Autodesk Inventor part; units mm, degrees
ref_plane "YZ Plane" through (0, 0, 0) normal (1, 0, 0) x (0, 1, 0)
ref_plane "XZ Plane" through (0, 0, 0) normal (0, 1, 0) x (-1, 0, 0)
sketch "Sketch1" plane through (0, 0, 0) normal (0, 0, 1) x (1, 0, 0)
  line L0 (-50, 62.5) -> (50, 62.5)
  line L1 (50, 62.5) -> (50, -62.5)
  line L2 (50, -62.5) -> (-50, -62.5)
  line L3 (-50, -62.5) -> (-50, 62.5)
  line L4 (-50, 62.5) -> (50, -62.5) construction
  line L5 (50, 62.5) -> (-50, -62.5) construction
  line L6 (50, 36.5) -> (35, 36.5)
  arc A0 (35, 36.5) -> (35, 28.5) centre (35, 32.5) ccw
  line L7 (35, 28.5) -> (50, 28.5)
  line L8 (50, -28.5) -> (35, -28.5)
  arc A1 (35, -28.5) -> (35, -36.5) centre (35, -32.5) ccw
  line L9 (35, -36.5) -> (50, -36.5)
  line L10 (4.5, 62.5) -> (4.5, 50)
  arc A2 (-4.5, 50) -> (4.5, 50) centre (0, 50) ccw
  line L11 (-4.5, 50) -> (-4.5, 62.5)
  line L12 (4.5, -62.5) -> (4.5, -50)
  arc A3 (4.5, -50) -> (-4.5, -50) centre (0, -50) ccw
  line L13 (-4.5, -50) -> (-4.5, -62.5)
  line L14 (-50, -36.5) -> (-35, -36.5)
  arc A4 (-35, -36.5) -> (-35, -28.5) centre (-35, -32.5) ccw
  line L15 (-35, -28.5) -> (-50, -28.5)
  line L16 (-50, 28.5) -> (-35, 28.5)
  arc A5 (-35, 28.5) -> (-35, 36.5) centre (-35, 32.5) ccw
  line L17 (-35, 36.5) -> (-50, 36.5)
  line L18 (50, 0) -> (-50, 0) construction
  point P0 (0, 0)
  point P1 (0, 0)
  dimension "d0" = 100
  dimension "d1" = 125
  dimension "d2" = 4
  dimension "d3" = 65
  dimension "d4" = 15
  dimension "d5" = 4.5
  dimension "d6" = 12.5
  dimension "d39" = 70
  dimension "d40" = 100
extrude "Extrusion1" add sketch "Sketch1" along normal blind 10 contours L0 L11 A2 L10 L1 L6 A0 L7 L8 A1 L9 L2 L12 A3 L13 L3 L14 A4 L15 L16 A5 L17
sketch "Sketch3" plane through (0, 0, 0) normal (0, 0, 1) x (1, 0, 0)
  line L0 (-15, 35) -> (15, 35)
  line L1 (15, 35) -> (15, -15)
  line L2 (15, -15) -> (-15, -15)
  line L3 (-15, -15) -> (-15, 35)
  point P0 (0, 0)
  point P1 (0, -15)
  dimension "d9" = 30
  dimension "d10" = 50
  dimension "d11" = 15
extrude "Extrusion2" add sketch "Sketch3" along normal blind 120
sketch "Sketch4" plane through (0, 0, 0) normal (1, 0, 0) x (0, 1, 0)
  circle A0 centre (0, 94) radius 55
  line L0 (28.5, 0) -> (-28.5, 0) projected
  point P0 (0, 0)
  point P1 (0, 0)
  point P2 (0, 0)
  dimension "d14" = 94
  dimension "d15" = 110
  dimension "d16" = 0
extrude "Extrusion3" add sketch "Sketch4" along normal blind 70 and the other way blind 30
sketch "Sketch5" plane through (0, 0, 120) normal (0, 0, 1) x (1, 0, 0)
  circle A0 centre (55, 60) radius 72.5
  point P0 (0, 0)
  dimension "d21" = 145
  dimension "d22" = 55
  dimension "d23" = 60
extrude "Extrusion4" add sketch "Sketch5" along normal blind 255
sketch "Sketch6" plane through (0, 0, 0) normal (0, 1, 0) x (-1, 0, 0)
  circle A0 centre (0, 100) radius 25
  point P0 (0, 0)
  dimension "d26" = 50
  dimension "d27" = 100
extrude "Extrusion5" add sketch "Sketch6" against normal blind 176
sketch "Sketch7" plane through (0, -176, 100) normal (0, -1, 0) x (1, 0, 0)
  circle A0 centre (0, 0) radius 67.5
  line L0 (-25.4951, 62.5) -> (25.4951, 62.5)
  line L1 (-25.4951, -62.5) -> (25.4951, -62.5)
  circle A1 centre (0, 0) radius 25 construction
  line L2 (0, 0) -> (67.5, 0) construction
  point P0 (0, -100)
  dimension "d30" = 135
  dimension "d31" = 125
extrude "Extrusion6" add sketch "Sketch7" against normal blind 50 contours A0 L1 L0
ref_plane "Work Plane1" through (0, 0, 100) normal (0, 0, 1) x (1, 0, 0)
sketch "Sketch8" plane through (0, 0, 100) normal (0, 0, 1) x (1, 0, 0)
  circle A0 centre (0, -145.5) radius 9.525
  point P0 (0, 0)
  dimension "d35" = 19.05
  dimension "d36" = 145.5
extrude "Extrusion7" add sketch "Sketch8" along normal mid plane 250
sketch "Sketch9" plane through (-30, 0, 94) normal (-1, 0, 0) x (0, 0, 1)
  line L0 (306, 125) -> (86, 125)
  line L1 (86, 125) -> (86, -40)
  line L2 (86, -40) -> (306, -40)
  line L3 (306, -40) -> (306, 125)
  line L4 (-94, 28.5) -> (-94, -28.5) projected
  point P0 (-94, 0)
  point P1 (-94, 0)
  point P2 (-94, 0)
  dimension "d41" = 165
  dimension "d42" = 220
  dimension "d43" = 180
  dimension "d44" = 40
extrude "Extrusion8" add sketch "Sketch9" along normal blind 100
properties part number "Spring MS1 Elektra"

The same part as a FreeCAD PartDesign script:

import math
import FreeCAD as App
import Part
import Sketcher

V = App.Vector

doc = App.newDocument("Part")
params = doc.addObject("Spreadsheet::Sheet", "Params")
for row, (alias, value) in enumerate([
    ("sketch1_radius", "4 mm"),
    ("sketch1_radius2", "4.5 mm"),
    ("sketch1_width", "15 mm"),
    ("sketch1_height", "12.5 mm"),
    ("pad1_length", "10 mm"),
    ("sketch2_width", "30 mm"),
    ("sketch2_height", "50 mm"),
    ("pad2_length", "120 mm"),
    ("sketch3_diameter", "110 mm"),
    ("pad3_length", "70 mm"),
    ("pad3_length2", "30 mm"),
    ("sketch4_diameter", "145 mm"),
    ("pad4_length", "255 mm"),
    ("sketch5_diameter", "50 mm"),
    ("pad5_length", "176 mm"),
    ("sketch6_radius", "67.5 mm"),
    ("pad6_length", "50 mm"),
    ("sketch7_diameter", "19.05 mm"),
    ("pad7_length", "250 mm"),
    ("sketch8_width", "165 mm"),
    ("sketch8_height", "220 mm"),
    ("pad8_length", "100 mm"),
], start=1):
    params.set(f"A{row}", alias)
    params.set(f"B{row}", "=" + value)
    params.setAlias(f"B{row}", alias)

body = doc.addObject("PartDesign::Body", "Body")
body.AllowCompound = True

sketch1 = body.newObject("Sketcher::SketchObject", "Sketch")
sketch1.AttachmentSupport = (doc.getObject("XY_Plane"), [""])
sketch1.MapMode = "FlatFace"
sketch1.addGeometry(Part.LineSegment(V(-4.5, 62.5, 0), V(-50, 62.5, 0)), False)
sketch1.addGeometry(Part.LineSegment(V(-50, 62.5, 0), V(-50, 36.5, 0)), False)
sketch1.addGeometry(Part.LineSegment(V(-50, 36.5, 0), V(-35, 36.5, 0)), False)
sketch1.addGeometry(Part.ArcOfCircle(Part.Circle(V(-35, 32.5, 0), V(0, 0, 1), 4), math.radians(-90), math.radians(90)), False)
sketch1.addGeometry(Part.LineSegment(V(-35, 28.5, 0), V(-50, 28.5, 0)), False)
sketch1.addGeometry(Part.LineSegment(V(-50, 28.5, 0), V(-50, -28.5, 0)), False)
sketch1.addGeometry(Part.LineSegment(V(-50, -28.5, 0), V(-35, -28.5, 0)), False)
sketch1.addGeometry(Part.ArcOfCircle(Part.Circle(V(-35, -32.5, 0), V(0, 0, 1), 4), math.radians(-90), math.radians(90)), False)
sketch1.addGeometry(Part.LineSegment(V(-35, -36.5, 0), V(-50, -36.5, 0)), False)
sketch1.addGeometry(Part.LineSegment(V(-50, -36.5, 0), V(-50, -62.5, 0)), False)
sketch1.addGeometry(Part.LineSegment(V(-50, -62.5, 0), V(-4.5, -62.5, 0)), False)
sketch1.addGeometry(Part.LineSegment(V(-4.5, -62.5, 0), V(-4.5, -50, 0)), False)
sketch1.addGeometry(Part.ArcOfCircle(Part.Circle(V(0, -50, 0), V(0, 0, 1), 4.5), math.radians(0), math.radians(180)), False)
sketch1.addGeometry(Part.LineSegment(V(4.5, -50, 0), V(4.5, -62.5, 0)), False)
sketch1.addGeometry(Part.LineSegment(V(4.5, -62.5, 0), V(50, -62.5, 0)), False)
sketch1.addGeometry(Part.LineSegment(V(50, -62.5, 0), V(50, -36.5, 0)), False)
sketch1.addGeometry(Part.LineSegment(V(50, -36.5, 0), V(35, -36.5, 0)), False)
sketch1.addGeometry(Part.ArcOfCircle(Part.Circle(V(35, -32.5, 0), V(0, 0, 1), 4), math.radians(90), math.radians(270)), False)
sketch1.addGeometry(Part.LineSegment(V(35, -28.5, 0), V(50, -28.5, 0)), False)
sketch1.addGeometry(Part.LineSegment(V(50, -28.5, 0), V(50, 28.5, 0)), False)
sketch1.addGeometry(Part.LineSegment(V(50, 28.5, 0), V(35, 28.5, 0)), False)
sketch1.addGeometry(Part.ArcOfCircle(Part.Circle(V(35, 32.5, 0), V(0, 0, 1), 4), math.radians(90), math.radians(270)), False)
sketch1.addGeometry(Part.LineSegment(V(35, 36.5, 0), V(50, 36.5, 0)), False)
sketch1.addGeometry(Part.LineSegment(V(50, 36.5, 0), V(50, 62.5, 0)), False)
sketch1.addGeometry(Part.LineSegment(V(50, 62.5, 0), V(4.5, 62.5, 0)), False)
sketch1.addGeometry(Part.LineSegment(V(4.5, 62.5, 0), V(4.5, 50, 0)), False)
sketch1.addGeometry(Part.ArcOfCircle(Part.Circle(V(0, 50, 0), V(0, 0, 1), 4.5), math.radians(180), math.radians(360)), False)
sketch1.addGeometry(Part.LineSegment(V(-4.5, 50, 0), V(-4.5, 62.5, 0)), False)
sketch1.addConstraint(Sketcher.Constraint("Coincident", 0, 2, 1, 1))
sketch1.addConstraint(Sketcher.Constraint("Coincident", 1, 2, 2, 1))
sketch1.addConstraint(Sketcher.Constraint("Tangent", 2, 2, 3, 2))
sketch1.addConstraint(Sketcher.Constraint("Tangent", 3, 1, 4, 1))
sketch1.addConstraint(Sketcher.Constraint("Coincident", 4, 2, 5, 1))
sketch1.addConstraint(Sketcher.Constraint("Coincident", 5, 2, 6, 1))
sketch1.addConstraint(Sketcher.Constraint("Tangent", 6, 2, 7, 2))
sketch1.addConstraint(Sketcher.Constraint("Tangent", 7, 1, 8, 1))
sketch1.addConstraint(Sketcher.Constraint("Coincident", 8, 2, 9, 1))
sketch1.addConstraint(Sketcher.Constraint("Coincident", 9, 2, 10, 1))
sketch1.addConstraint(Sketcher.Constraint("Coincident", 10, 2, 11, 1))
sketch1.addConstraint(Sketcher.Constraint("Tangent", 11, 2, 12, 2))
sketch1.addConstraint(Sketcher.Constraint("Tangent", 12, 1, 13, 1))
sketch1.addConstraint(Sketcher.Constraint("Coincident", 13, 2, 14, 1))
sketch1.addConstraint(Sketcher.Constraint("Coincident", 14, 2, 15, 1))
sketch1.addConstraint(Sketcher.Constraint("Coincident", 15, 2, 16, 1))
sketch1.addConstraint(Sketcher.Constraint("Tangent", 16, 2, 17, 2))
sketch1.addConstraint(Sketcher.Constraint("Tangent", 17, 1, 18, 1))
sketch1.addConstraint(Sketcher.Constraint("Coincident", 18, 2, 19, 1))
sketch1.addConstraint(Sketcher.Constraint("Coincident", 19, 2, 20, 1))
sketch1.addConstraint(Sketcher.Constraint("Tangent", 20, 2, 21, 2))
sketch1.addConstraint(Sketcher.Constraint("Tangent", 21, 1, 22, 1))
sketch1.addConstraint(Sketcher.Constraint("Coincident", 22, 2, 23, 1))
sketch1.addConstraint(Sketcher.Constraint("Coincident", 23, 2, 24, 1))
sketch1.addConstraint(Sketcher.Constraint("Coincident", 24, 2, 25, 1))
sketch1.addConstraint(Sketcher.Constraint("Tangent", 25, 2, 26, 2))
sketch1.addConstraint(Sketcher.Constraint("Tangent", 26, 1, 27, 1))
sketch1.addConstraint(Sketcher.Constraint("Coincident", 27, 2, 0, 1))
sketch1.addConstraint(Sketcher.Constraint("Horizontal", 0))
sketch1.addConstraint(Sketcher.Constraint("Vertical", 1))
sketch1.addConstraint(Sketcher.Constraint("Horizontal", 2))
sketch1.addConstraint(Sketcher.Constraint("Horizontal", 4))
sketch1.addConstraint(Sketcher.Constraint("Vertical", 5))
sketch1.addConstraint(Sketcher.Constraint("Horizontal", 6))
sketch1.addConstraint(Sketcher.Constraint("Horizontal", 8))
sketch1.addConstraint(Sketcher.Constraint("Vertical", 9))
sketch1.addConstraint(Sketcher.Constraint("Horizontal", 10))
sketch1.addConstraint(Sketcher.Constraint("Vertical", 11))
sketch1.addConstraint(Sketcher.Constraint("Vertical", 13))
sketch1.addConstraint(Sketcher.Constraint("Horizontal", 14))
sketch1.addConstraint(Sketcher.Constraint("Vertical", 15))
sketch1.addConstraint(Sketcher.Constraint("Horizontal", 16))
sketch1.addConstraint(Sketcher.Constraint("Horizontal", 18))
sketch1.addConstraint(Sketcher.Constraint("Vertical", 19))
sketch1.addConstraint(Sketcher.Constraint("Horizontal", 20))
sketch1.addConstraint(Sketcher.Constraint("Horizontal", 22))
sketch1.addConstraint(Sketcher.Constraint("Vertical", 23))
sketch1.addConstraint(Sketcher.Constraint("Horizontal", 24))
sketch1.addConstraint(Sketcher.Constraint("Vertical", 25))
sketch1.addConstraint(Sketcher.Constraint("Vertical", 27))
sketch1.addConstraint(Sketcher.Constraint("Equal", 3, 7))
sketch1.addConstraint(Sketcher.Constraint("Equal", 7, 17))
sketch1.addConstraint(Sketcher.Constraint("Equal", 17, 21))
sketch1.addConstraint(Sketcher.Constraint("Equal", 12, 26))
sketch1.addConstraint(Sketcher.Constraint("Symmetric", 3, 3, 17, 3, -1, 1))
sketch1.addConstraint(Sketcher.Constraint("Symmetric", 7, 3, 21, 3, -1, 1))
sketch1.addConstraint(Sketcher.Constraint("Symmetric", 12, 3, 26, 3, -1, 1))
sketch1.addConstraint(Sketcher.Constraint("Symmetric", 0, 2, 14, 2, -1, 1))
sketch1.addConstraint(Sketcher.Constraint("Symmetric", 9, 2, 23, 2, -1, 1))
sketch1.addConstraint(Sketcher.Constraint("Symmetric", 7, 3, 17, 3, -2))
sketch1.addConstraint(Sketcher.Constraint("Symmetric", 10, 2, 13, 2, -2))
sketch1.addConstraint(Sketcher.Constraint("Vertical", 1, 2, 4, 2))
sketch1.addConstraint(Sketcher.Constraint("Vertical", 5, 2, 8, 2))
sketch1.addConstraint(Sketcher.Constraint("Vertical", 15, 2, 18, 2))
sketch1.addConstraint(Sketcher.Constraint("Radius", 3, 4.0))
sketch1.addConstraint(Sketcher.Constraint("Radius", 12, 4.5))
sketch1.addConstraint(Sketcher.Constraint("DistanceX", 2, 1, 2, 2, 15.0))
sketch1.addConstraint(Sketcher.Constraint("DistanceY", 11, 1, 11, 2, 12.5))
sketch1.addConstraint(Sketcher.Constraint("DistanceY", 7, 3, 3, 3, 65.0))
sketch1.addConstraint(Sketcher.Constraint("DistanceX", 7, 3, 17, 3, 70.0))
sketch1.addConstraint(Sketcher.Constraint("DistanceY", 12, 3, 26, 3, 100.0))
sketch1.setExpression("Constraints[64]", "Params.sketch1_radius")
sketch1.setExpression("Constraints[65]", "Params.sketch1_radius2")
sketch1.setExpression("Constraints[66]", "Params.sketch1_width")
sketch1.setExpression("Constraints[67]", "Params.sketch1_height")
pad1 = body.newObject("PartDesign::Pad", "Pad")
pad1.Profile = sketch1
pad1.setExpression("Length", "Params.pad1_length")

sketch2 = body.newObject("Sketcher::SketchObject", "Sketch001")
sketch2.AttachmentSupport = (doc.getObject("XY_Plane"), [""])
sketch2.MapMode = "FlatFace"
sketch2.addGeometry(Part.LineSegment(V(15, 35, 0), V(-15, 35, 0)), False)
sketch2.addGeometry(Part.LineSegment(V(-15, 35, 0), V(-15, -15, 0)), False)
sketch2.addGeometry(Part.LineSegment(V(-15, -15, 0), V(15, -15, 0)), False)
sketch2.addGeometry(Part.LineSegment(V(15, -15, 0), V(15, 35, 0)), False)
sketch2.addConstraint(Sketcher.Constraint("Coincident", 0, 2, 1, 1))
sketch2.addConstraint(Sketcher.Constraint("Coincident", 1, 2, 2, 1))
sketch2.addConstraint(Sketcher.Constraint("Coincident", 2, 2, 3, 1))
sketch2.addConstraint(Sketcher.Constraint("Coincident", 3, 2, 0, 1))
sketch2.addConstraint(Sketcher.Constraint("Horizontal", 0))
sketch2.addConstraint(Sketcher.Constraint("Vertical", 1))
sketch2.addConstraint(Sketcher.Constraint("Horizontal", 2))
sketch2.addConstraint(Sketcher.Constraint("Vertical", 3))
sketch2.addConstraint(Sketcher.Constraint("DistanceX", 0, 2, 0, 1, 30.0))
sketch2.addConstraint(Sketcher.Constraint("DistanceY", 1, 2, 1, 1, 50.0))
sketch2.addConstraint(Sketcher.Constraint("DistanceX", 0, 2, -1, 1, 15.0))
sketch2.addConstraint(Sketcher.Constraint("DistanceY", 1, 2, -1, 1, 15.0))
sketch2.setExpression("Constraints[8]", "Params.sketch2_width")
sketch2.setExpression("Constraints[9]", "Params.sketch2_height")
pad2 = body.newObject("PartDesign::Pad", "Pad001")
pad2.Profile = sketch2
pad2.setExpression("Length", "Params.pad2_length")

sketch3 = body.newObject("Sketcher::SketchObject", "Sketch002")
sketch3.AttachmentSupport = (doc.getObject("YZ_Plane"), [""])
sketch3.MapMode = "FlatFace"
sketch3.addGeometry(Part.Circle(V(0, 94, 0), V(0, 0, 1), 55), False)
sketch3.addConstraint(Sketcher.Constraint("PointOnObject", 0, 3, -2))
sketch3.addConstraint(Sketcher.Constraint("Diameter", 0, 110.0))
sketch3.addConstraint(Sketcher.Constraint("DistanceY", -1, 1, 0, 3, 94.0))
sketch3.setExpression("Constraints[1]", "Params.sketch3_diameter")
pad3 = body.newObject("PartDesign::Pad", "Pad002")
pad3.Profile = sketch3
pad3.Type = "TwoLengths"
pad3.setExpression("Length", "Params.pad3_length")
pad3.setExpression("Length2", "Params.pad3_length2")

sketch4 = body.newObject("Sketcher::SketchObject", "Sketch003")
sketch4.AttachmentSupport = (doc.getObject("XY_Plane"), [""])
sketch4.MapMode = "FlatFace"
sketch4.AttachmentOffset = App.Placement(V(0, 0, 120), App.Rotation())
sketch4.addGeometry(Part.Circle(V(55, 60, 0), V(0, 0, 1), 72), False)
sketch4.addConstraint(Sketcher.Constraint("Diameter", 0, 145.0))
sketch4.addConstraint(Sketcher.Constraint("DistanceX", -1, 1, 0, 3, 55.0))
sketch4.addConstraint(Sketcher.Constraint("DistanceY", -1, 1, 0, 3, 60.0))
sketch4.setExpression("Constraints[0]", "Params.sketch4_diameter")
pad4 = body.newObject("PartDesign::Pad", "Pad003")
pad4.Profile = sketch4
pad4.setExpression("Length", "Params.pad4_length")

sketch5 = body.newObject("Sketcher::SketchObject", "Sketch004")
sketch5.AttachmentSupport = (doc.getObject("XZ_Plane"), [""])
sketch5.MapMode = "FlatFace"
sketch5.addGeometry(Part.Circle(V(0, 100, 0), V(0, 0, 1), 25), False)
sketch5.addConstraint(Sketcher.Constraint("PointOnObject", 0, 3, -2))
sketch5.addConstraint(Sketcher.Constraint("Diameter", 0, 50.0))
sketch5.addConstraint(Sketcher.Constraint("DistanceY", -1, 1, 0, 3, 100.0))
sketch5.setExpression("Constraints[1]", "Params.sketch5_diameter")
pad5 = body.newObject("PartDesign::Pad", "Pad004")
pad5.Profile = sketch5
pad5.setExpression("Length", "Params.pad5_length")

sketch6 = body.newObject("Sketcher::SketchObject", "Sketch005")
sketch6.AttachmentSupport = (doc.getObject("XZ_Plane"), [""])
sketch6.MapMode = "FlatFace"
sketch6.AttachmentOffset = App.Placement(V(0, 0, 176), App.Rotation())
sketch6.addGeometry(Part.ArcOfCircle(Part.Circle(V(0, 100, 0), V(0, 0, 1), 68), math.radians(-68), math.radians(68)), False)
sketch6.addGeometry(Part.LineSegment(V(25, 162, 0), V(-25, 162, 0)), False)
sketch6.addGeometry(Part.ArcOfCircle(Part.Circle(V(0, 100, 0), V(0, 0, 1), 68), math.radians(112), math.radians(248)), False)
sketch6.addGeometry(Part.LineSegment(V(-25, 38, 0), V(25, 38, 0)), False)
sketch6.addConstraint(Sketcher.Constraint("Coincident", 0, 2, 1, 1))
sketch6.addConstraint(Sketcher.Constraint("Coincident", 1, 2, 2, 1))
sketch6.addConstraint(Sketcher.Constraint("Coincident", 2, 2, 3, 1))
sketch6.addConstraint(Sketcher.Constraint("Coincident", 3, 2, 0, 1))
sketch6.addConstraint(Sketcher.Constraint("Horizontal", 1))
sketch6.addConstraint(Sketcher.Constraint("Horizontal", 3))
sketch6.addConstraint(Sketcher.Constraint("Coincident", 2, 3, 0, 3))
sketch6.addConstraint(Sketcher.Constraint("Equal", 0, 2))
sketch6.addConstraint(Sketcher.Constraint("PointOnObject", 0, 3, -2))
sketch6.addConstraint(Sketcher.Constraint("Vertical", 1, 2, 2, 2))
sketch6.addConstraint(Sketcher.Constraint("Radius", 0, 67.5))
sketch6.addConstraint(Sketcher.Constraint("DistanceY", 2, 2, 1, 2, 125.0))
sketch6.addConstraint(Sketcher.Constraint("DistanceY", -1, 1, 0, 3, 100.0))
sketch6.setExpression("Constraints[10]", "Params.sketch6_radius")
pad6 = body.newObject("PartDesign::Pad", "Pad005")
pad6.Profile = sketch6
pad6.setExpression("Length", "Params.pad6_length")
pad6.Reversed = True

sketch7 = body.newObject("Sketcher::SketchObject", "Sketch006")
sketch7.AttachmentSupport = (doc.getObject("XY_Plane"), [""])
sketch7.MapMode = "FlatFace"
sketch7.AttachmentOffset = App.Placement(V(0, 0, 100), App.Rotation())
sketch7.addGeometry(Part.Circle(V(0, -146, 0), V(0, 0, 1), 10), False)
sketch7.addConstraint(Sketcher.Constraint("PointOnObject", 0, 3, -2))
sketch7.addConstraint(Sketcher.Constraint("Diameter", 0, 19.05))
sketch7.addConstraint(Sketcher.Constraint("DistanceY", 0, 3, -1, 1, 145.5))
sketch7.setExpression("Constraints[1]", "Params.sketch7_diameter")
pad7 = body.newObject("PartDesign::Pad", "Pad006")
pad7.Profile = sketch7
pad7.setExpression("Length", "Params.pad7_length")
pad7.Midplane = True

sketch8 = body.newObject("Sketcher::SketchObject", "Sketch007")
sketch8.AttachmentSupport = (doc.getObject("YZ_Plane"), [""])
sketch8.MapMode = "FlatFace"
sketch8.AttachmentOffset = App.Placement(V(0, 0, -30), App.Rotation())
sketch8.addGeometry(Part.LineSegment(V(-40, 400, 0), V(125, 400, 0)), False)
sketch8.addGeometry(Part.LineSegment(V(125, 400, 0), V(125, 180, 0)), False)
sketch8.addGeometry(Part.LineSegment(V(125, 180, 0), V(-40, 180, 0)), False)
sketch8.addGeometry(Part.LineSegment(V(-40, 180, 0), V(-40, 400, 0)), False)
sketch8.addConstraint(Sketcher.Constraint("Coincident", 0, 2, 1, 1))
sketch8.addConstraint(Sketcher.Constraint("Coincident", 1, 2, 2, 1))
sketch8.addConstraint(Sketcher.Constraint("Coincident", 2, 2, 3, 1))
sketch8.addConstraint(Sketcher.Constraint("Coincident", 3, 2, 0, 1))
sketch8.addConstraint(Sketcher.Constraint("Horizontal", 0))
sketch8.addConstraint(Sketcher.Constraint("Vertical", 1))
sketch8.addConstraint(Sketcher.Constraint("Horizontal", 2))
sketch8.addConstraint(Sketcher.Constraint("Vertical", 3))
sketch8.addConstraint(Sketcher.Constraint("DistanceX", 0, 1, 0, 2, 165.0))
sketch8.addConstraint(Sketcher.Constraint("DistanceY", 1, 2, 1, 1, 220.0))
sketch8.addConstraint(Sketcher.Constraint("DistanceY", -1, 1, 1, 2, 180.0))
sketch8.addConstraint(Sketcher.Constraint("DistanceX", 2, 2, -1, 1, 40.0))
sketch8.setExpression("Constraints[8]", "Params.sketch8_width")
sketch8.setExpression("Constraints[9]", "Params.sketch8_height")
pad8 = body.newObject("PartDesign::Pad", "Pad007")
pad8.Profile = sketch8
pad8.setExpression("Length", "Params.pad8_length")
pad8.Reversed = True

doc.recompute()
